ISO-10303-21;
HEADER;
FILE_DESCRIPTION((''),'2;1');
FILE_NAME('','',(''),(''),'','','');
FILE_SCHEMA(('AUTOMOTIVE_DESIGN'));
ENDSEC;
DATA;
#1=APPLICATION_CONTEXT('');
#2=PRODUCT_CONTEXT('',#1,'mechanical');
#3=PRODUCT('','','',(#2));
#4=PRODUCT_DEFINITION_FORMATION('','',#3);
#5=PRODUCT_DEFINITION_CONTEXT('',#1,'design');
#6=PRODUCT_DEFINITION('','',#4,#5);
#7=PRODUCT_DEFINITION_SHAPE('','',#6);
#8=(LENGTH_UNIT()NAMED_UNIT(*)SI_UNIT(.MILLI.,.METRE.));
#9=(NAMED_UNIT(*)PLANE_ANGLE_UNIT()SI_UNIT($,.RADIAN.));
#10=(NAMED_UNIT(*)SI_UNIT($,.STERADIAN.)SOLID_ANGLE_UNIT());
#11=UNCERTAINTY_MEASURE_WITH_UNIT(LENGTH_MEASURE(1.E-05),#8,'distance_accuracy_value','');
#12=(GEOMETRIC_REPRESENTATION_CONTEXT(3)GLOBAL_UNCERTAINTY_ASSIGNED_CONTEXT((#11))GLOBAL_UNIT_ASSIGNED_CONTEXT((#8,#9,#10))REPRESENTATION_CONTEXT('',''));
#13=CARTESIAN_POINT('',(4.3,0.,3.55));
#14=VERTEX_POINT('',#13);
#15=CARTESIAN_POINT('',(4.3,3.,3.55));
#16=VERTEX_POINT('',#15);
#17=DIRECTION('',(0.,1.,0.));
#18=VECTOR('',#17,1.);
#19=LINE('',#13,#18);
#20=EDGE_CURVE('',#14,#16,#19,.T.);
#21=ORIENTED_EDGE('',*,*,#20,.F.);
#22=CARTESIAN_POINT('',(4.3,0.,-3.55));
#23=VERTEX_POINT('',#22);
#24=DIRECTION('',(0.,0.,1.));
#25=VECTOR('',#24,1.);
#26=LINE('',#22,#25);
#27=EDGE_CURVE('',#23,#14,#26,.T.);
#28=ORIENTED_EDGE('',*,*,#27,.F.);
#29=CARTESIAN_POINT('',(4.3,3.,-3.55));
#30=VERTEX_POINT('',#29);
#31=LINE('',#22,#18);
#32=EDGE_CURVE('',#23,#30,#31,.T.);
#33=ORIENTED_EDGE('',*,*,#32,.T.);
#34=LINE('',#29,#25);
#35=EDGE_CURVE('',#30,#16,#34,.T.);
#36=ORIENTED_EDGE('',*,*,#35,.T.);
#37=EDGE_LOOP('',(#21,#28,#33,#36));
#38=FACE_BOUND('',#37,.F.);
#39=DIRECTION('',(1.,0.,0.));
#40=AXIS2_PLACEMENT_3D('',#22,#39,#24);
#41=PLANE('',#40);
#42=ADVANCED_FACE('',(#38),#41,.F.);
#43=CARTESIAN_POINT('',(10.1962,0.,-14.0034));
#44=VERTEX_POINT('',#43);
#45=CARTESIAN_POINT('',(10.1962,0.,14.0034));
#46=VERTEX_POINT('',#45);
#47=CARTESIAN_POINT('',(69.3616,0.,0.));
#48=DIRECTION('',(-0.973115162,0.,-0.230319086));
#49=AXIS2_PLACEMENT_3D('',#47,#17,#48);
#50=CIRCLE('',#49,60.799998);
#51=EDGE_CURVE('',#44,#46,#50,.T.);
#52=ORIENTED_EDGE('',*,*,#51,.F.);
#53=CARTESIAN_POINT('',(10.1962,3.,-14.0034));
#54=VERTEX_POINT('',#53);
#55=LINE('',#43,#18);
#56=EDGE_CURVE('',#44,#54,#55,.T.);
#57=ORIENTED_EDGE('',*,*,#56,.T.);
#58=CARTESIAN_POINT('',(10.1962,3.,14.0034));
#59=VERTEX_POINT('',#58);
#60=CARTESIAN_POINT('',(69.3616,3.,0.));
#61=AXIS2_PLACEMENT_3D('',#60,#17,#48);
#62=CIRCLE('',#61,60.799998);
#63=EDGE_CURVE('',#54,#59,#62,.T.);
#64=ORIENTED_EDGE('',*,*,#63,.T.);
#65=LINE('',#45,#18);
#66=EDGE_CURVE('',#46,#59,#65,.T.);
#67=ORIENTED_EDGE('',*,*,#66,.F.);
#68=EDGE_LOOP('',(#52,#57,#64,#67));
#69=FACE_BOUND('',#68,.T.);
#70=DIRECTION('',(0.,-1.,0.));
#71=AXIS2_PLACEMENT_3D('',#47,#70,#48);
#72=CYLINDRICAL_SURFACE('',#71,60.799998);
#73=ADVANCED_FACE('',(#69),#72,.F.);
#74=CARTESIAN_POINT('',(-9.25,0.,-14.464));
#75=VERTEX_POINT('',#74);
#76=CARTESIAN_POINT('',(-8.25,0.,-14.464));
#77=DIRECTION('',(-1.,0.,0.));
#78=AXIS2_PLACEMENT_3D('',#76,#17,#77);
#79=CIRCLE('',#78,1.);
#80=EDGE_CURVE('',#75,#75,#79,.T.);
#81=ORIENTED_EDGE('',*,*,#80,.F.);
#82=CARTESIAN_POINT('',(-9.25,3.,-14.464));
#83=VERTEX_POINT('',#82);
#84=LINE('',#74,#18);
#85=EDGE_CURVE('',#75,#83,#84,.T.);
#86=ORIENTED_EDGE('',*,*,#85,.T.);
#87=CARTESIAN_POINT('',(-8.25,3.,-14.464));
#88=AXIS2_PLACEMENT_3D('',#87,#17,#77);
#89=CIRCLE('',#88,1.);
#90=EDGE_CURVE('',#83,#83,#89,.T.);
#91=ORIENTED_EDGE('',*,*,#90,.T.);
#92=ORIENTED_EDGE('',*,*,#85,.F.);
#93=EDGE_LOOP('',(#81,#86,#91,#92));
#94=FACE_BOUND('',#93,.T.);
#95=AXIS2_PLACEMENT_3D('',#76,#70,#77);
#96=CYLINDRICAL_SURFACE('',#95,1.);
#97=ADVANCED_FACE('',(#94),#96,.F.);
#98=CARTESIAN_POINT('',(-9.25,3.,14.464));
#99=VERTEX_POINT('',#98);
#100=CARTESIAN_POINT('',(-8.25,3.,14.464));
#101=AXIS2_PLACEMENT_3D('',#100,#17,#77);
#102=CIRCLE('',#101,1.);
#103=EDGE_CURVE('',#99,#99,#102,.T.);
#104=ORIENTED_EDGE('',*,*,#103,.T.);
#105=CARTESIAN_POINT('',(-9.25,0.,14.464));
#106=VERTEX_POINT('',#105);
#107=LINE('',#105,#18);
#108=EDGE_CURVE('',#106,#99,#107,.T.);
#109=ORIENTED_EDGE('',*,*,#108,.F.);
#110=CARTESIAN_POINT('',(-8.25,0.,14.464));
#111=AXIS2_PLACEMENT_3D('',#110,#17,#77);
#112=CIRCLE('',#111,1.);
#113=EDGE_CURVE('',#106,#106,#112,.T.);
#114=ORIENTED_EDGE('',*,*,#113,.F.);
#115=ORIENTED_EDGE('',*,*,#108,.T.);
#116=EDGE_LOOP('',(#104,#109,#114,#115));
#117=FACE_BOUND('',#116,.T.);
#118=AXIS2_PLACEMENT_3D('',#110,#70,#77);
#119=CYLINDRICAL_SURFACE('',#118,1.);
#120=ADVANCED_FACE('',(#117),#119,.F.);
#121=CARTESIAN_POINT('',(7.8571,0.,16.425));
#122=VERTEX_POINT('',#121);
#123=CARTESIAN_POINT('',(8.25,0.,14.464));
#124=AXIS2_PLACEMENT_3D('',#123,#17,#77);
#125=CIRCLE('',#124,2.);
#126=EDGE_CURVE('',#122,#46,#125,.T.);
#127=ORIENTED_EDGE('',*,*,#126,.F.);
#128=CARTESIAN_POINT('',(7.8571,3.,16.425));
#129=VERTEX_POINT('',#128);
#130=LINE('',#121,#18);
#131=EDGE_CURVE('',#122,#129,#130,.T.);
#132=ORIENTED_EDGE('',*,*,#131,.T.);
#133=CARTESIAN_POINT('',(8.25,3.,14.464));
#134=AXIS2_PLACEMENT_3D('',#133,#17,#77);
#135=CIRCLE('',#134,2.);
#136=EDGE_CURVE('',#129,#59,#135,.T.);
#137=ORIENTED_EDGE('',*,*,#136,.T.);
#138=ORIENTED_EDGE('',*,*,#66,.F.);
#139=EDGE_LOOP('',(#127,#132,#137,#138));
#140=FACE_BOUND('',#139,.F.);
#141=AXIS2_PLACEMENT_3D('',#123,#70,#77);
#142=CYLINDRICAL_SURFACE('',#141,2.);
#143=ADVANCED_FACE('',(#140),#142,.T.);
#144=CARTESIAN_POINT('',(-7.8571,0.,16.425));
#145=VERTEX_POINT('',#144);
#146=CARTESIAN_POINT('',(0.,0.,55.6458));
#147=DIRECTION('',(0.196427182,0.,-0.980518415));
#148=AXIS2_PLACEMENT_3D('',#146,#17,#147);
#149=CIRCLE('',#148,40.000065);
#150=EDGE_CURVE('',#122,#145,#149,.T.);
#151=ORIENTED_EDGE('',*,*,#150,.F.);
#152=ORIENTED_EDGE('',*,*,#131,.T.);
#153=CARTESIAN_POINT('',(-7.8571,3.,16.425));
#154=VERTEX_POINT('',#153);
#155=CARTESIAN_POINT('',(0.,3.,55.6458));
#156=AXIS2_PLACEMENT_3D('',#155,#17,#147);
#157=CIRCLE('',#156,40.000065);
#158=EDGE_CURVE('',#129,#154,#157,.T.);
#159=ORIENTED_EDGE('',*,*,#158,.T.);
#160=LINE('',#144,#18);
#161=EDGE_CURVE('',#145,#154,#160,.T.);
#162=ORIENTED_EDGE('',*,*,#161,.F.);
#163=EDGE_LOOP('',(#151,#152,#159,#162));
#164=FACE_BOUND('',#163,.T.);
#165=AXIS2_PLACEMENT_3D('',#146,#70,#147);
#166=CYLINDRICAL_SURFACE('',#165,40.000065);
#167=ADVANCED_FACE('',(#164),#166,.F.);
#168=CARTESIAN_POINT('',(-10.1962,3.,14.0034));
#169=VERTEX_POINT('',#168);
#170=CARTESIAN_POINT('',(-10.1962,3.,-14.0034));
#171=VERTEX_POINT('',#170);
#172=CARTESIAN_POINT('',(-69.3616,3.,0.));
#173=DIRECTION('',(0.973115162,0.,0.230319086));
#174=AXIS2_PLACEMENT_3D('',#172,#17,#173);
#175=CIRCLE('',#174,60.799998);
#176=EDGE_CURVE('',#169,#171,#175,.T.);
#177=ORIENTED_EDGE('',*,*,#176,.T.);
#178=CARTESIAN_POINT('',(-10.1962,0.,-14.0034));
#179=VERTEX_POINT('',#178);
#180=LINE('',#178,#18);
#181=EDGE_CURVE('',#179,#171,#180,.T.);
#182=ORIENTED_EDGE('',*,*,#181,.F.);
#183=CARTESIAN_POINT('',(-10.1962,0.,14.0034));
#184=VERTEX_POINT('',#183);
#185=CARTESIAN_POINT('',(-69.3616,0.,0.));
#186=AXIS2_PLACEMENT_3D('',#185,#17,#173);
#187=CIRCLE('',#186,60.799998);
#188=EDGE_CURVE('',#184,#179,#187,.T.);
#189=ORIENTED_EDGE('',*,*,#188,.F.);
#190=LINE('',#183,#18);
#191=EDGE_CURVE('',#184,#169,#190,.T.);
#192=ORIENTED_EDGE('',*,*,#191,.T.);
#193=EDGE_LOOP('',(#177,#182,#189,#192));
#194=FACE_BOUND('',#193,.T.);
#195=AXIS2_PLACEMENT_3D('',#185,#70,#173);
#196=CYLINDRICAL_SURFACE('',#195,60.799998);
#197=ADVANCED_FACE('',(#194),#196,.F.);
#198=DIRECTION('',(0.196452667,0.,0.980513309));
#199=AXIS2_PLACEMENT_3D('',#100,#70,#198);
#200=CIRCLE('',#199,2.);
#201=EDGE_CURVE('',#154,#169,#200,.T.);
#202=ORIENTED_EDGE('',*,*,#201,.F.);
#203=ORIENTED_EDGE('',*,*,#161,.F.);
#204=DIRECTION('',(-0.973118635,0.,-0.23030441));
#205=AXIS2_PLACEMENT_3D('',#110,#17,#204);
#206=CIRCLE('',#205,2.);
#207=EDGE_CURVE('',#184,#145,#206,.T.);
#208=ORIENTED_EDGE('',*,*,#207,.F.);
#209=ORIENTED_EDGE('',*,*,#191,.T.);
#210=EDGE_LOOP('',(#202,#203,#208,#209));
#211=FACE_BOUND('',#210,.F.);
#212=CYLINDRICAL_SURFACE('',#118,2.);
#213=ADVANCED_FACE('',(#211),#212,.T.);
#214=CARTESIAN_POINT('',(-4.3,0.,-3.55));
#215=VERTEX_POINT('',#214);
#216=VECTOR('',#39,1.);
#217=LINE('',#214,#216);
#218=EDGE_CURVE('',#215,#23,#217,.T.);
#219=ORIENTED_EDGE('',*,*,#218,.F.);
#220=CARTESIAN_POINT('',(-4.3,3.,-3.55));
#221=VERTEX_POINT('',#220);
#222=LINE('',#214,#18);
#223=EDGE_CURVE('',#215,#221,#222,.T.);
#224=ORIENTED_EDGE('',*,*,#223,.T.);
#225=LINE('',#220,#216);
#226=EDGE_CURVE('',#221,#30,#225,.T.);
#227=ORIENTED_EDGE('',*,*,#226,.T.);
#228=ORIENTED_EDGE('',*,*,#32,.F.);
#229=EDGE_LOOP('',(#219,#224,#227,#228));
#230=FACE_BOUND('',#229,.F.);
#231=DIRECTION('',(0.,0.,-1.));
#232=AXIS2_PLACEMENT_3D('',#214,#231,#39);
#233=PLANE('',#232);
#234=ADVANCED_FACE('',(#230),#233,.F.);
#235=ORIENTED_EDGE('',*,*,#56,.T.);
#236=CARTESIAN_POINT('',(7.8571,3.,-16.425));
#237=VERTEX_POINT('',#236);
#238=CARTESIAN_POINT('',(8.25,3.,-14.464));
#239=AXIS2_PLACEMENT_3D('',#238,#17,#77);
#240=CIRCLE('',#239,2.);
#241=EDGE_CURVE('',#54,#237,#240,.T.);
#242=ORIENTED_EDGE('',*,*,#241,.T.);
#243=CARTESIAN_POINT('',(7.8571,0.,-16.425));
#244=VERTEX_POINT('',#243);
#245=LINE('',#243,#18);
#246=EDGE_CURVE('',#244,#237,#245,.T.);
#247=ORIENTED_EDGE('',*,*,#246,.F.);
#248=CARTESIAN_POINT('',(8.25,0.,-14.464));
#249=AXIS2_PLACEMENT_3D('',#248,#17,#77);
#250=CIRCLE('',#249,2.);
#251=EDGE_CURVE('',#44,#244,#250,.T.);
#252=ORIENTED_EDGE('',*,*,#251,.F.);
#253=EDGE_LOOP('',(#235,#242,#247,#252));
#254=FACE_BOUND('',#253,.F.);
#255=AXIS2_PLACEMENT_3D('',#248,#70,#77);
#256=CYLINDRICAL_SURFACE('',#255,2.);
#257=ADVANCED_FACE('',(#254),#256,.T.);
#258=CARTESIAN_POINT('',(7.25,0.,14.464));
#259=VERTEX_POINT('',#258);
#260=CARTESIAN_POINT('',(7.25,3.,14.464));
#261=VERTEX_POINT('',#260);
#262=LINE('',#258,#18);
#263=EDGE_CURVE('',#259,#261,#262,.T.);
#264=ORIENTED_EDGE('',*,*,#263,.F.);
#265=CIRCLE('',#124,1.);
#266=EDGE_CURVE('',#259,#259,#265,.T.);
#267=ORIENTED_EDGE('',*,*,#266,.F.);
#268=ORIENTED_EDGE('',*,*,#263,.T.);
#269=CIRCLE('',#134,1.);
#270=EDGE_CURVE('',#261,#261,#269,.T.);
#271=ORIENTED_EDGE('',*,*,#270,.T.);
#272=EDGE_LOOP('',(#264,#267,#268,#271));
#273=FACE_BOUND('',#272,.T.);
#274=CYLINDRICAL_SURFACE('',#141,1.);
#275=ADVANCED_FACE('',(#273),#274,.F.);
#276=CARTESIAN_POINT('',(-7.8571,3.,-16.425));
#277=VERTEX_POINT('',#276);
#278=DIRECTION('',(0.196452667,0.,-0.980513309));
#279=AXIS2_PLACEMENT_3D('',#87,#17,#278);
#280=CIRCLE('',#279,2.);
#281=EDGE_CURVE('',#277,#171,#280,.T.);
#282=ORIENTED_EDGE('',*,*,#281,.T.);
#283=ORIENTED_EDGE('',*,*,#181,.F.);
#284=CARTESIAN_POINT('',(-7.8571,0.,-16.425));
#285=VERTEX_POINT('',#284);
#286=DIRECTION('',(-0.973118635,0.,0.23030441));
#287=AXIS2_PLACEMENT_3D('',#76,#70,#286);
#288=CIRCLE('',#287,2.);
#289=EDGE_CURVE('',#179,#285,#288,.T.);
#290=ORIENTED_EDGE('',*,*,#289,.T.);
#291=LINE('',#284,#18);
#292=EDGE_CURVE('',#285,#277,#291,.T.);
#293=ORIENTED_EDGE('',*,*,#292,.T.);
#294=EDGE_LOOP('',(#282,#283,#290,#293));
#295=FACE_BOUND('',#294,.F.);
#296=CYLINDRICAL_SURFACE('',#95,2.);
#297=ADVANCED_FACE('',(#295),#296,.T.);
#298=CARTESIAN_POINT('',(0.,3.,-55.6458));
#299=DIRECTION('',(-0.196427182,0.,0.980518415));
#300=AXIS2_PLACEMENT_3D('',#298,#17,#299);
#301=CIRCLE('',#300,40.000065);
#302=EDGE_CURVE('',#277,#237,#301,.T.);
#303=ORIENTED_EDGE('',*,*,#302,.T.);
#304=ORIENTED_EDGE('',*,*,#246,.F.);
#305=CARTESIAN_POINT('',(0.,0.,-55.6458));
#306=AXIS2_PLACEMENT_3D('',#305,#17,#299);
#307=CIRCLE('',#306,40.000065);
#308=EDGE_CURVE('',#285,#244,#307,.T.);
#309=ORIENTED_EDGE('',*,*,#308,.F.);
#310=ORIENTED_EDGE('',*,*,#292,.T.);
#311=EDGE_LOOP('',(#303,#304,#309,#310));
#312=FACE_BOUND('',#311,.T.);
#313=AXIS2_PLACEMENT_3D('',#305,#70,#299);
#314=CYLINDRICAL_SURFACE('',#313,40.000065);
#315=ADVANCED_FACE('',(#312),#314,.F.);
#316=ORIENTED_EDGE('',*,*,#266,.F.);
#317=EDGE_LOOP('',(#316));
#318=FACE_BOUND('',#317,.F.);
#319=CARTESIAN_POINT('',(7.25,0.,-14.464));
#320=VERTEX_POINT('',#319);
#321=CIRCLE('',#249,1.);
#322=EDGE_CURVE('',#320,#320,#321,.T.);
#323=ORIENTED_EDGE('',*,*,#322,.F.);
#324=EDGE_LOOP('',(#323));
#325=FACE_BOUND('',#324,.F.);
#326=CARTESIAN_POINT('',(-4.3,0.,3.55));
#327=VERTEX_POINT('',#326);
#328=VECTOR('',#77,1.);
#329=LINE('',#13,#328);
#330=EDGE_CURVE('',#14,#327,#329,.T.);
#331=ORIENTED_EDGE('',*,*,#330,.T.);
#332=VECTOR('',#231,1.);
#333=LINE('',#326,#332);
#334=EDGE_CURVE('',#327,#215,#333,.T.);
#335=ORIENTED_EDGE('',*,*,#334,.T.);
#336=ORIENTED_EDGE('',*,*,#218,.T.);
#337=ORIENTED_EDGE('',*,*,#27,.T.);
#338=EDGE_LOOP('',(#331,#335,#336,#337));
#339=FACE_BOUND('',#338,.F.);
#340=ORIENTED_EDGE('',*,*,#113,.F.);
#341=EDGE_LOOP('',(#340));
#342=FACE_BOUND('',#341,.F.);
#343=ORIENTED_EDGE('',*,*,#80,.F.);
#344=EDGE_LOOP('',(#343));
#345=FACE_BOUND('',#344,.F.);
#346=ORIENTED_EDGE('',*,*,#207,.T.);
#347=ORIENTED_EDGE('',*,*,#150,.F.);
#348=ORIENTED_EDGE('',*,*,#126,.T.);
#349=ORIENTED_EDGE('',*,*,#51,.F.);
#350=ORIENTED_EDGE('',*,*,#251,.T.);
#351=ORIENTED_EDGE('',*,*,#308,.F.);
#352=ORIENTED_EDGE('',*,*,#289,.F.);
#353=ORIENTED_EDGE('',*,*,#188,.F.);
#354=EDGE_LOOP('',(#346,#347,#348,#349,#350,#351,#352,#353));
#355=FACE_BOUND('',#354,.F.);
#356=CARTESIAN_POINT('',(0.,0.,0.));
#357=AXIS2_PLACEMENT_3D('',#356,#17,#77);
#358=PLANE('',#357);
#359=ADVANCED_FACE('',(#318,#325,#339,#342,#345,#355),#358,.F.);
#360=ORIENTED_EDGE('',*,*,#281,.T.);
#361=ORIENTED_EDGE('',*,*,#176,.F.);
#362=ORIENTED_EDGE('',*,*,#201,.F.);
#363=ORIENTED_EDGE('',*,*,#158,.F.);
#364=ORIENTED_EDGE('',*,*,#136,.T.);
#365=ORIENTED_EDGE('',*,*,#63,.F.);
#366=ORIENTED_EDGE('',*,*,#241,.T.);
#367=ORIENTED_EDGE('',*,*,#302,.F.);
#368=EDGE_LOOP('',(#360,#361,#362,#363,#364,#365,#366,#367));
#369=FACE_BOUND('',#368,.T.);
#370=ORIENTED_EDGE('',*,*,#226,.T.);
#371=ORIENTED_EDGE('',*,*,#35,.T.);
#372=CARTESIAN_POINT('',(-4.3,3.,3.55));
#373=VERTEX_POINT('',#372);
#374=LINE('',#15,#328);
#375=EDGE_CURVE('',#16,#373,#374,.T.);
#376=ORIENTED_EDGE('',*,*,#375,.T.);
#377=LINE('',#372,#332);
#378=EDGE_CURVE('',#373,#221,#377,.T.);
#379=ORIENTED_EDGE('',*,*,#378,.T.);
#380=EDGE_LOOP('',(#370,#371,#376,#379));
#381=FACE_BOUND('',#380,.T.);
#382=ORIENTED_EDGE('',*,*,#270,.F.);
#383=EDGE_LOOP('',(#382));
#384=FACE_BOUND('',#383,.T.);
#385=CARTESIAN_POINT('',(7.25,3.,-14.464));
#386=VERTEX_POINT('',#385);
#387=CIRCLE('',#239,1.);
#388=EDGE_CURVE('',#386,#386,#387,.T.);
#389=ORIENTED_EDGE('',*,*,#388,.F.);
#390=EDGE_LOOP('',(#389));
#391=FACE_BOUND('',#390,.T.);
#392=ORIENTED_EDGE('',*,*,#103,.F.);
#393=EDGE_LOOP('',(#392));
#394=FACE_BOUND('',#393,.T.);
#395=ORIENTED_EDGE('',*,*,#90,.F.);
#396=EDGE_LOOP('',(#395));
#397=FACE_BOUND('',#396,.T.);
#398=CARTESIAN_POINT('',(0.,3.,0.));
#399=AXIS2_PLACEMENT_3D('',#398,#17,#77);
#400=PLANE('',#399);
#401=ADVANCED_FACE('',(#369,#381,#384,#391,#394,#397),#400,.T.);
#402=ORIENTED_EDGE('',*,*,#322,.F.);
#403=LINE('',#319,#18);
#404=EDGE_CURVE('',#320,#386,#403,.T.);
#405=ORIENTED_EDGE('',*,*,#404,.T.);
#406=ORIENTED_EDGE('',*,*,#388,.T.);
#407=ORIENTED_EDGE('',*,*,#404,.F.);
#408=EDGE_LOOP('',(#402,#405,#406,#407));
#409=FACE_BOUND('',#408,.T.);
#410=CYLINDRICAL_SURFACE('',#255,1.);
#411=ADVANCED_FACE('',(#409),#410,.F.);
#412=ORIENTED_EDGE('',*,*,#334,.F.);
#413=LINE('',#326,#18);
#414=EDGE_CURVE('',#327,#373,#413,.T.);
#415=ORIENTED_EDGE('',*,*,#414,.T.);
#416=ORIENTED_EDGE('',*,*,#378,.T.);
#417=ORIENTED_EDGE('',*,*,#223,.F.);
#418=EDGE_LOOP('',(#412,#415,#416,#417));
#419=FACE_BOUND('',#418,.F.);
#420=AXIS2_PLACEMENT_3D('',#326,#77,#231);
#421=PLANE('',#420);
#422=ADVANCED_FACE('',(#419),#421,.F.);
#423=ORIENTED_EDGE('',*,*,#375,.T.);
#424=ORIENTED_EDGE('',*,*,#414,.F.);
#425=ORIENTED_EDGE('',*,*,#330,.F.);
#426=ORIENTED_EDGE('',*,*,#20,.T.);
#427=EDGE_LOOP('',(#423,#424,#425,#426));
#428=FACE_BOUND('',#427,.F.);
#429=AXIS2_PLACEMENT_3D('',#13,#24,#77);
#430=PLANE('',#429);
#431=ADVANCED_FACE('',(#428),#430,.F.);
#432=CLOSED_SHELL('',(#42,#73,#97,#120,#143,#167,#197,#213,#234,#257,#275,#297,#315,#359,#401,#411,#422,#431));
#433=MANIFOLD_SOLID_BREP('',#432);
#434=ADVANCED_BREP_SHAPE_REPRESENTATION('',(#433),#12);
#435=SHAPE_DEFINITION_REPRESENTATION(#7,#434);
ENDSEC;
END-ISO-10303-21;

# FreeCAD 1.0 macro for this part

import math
import FreeCAD as App
import Part
import Sketcher

V = App.Vector
Q = App.Units.Quantity


def add_polygon(sketch, points):
    """Adds a closed chain of lines whose ends are joined by coincident constraints."""
    first, n = sketch.GeometryCount, len(points)
    for a, b in zip(points, points[1:] + points[:1]):
        sketch.addGeometry(Part.LineSegment(App.Vector(*a, 0), App.Vector(*b, 0)), False)
    for i in range(n):
        sketch.addConstraint(Sketcher.Constraint("Coincident", first + i, 2, first + (i + 1) % n, 1))

doc = App.newDocument("Part")
body = doc.addObject("PartDesign::Body", "Body")

sketch1 = body.newObject("Sketcher::SketchObject", "Sketch")
sketch1.AttachmentSupport = (doc.getObject("XZ_Plane"), [""])
sketch1.MapMode = "FlatFace"
sketch1.addGeometry(Part.ArcOfCircle(Part.Circle(V(-8.2, 14.5, 0), V(0, 0, 1), 2), math.radians(79), math.radians(193)), False)
sketch1.addGeometry(Part.ArcOfCircle(Part.Circle(V(0, 55.6, 0), V(0, 0, 1), 40), math.radians(-101), math.radians(-79)), False)
sketch1.addGeometry(Part.ArcOfCircle(Part.Circle(V(8.2, 14.5, 0), V(0, 0, 1), 2), math.radians(-13), math.radians(101)), False)
sketch1.addGeometry(Part.ArcOfCircle(Part.Circle(V(69.4, 0, 0), V(0, 0, 1), 60.8), math.radians(167), math.radians(193)), False)
sketch1.addGeometry(Part.ArcOfCircle(Part.Circle(V(8.2, -14.5, 0), V(0, 0, 1), 2), math.radians(-101), math.radians(13)), False)
sketch1.addGeometry(Part.ArcOfCircle(Part.Circle(V(0, -55.6, 0), V(0, 0, 1), 40), math.radians(79), math.radians(101)), False)
sketch1.addGeometry(Part.ArcOfCircle(Part.Circle(V(-8.2, -14.5, 0), V(0, 0, 1), 2), math.radians(167), math.radians(281)), False)
sketch1.addGeometry(Part.ArcOfCircle(Part.Circle(V(-69.4, 0, 0), V(0, 0, 1), 60.8), math.radians(-13), math.radians(13)), False)
sketch1.addGeometry(Part.Circle(V(-8.2, 14.5, 0), V(0, 0, 1), 1), False)
add_polygon(sketch1, [(4.3, 3.5), (-4.3, 3.5), (-4.3, -3.5), (4.3, -3.5)])
sketch1.addGeometry(Part.Circle(V(-8.2, -14.5, 0), V(0, 0, 1), 1), False)
sketch1.addGeometry(Part.Circle(V(8.2, -14.5, 0), V(0, 0, 1), 1), False)
sketch1.addGeometry(Part.Circle(V(8.2, 14.5, 0), V(0, 0, 1), 1), False)
sketch1.addConstraint([
    Sketcher.Constraint("Tangent", 0, 1, 1, 1),
    Sketcher.Constraint("Tangent", 1, 2, 2, 2),
    Sketcher.Constraint("Tangent", 2, 1, 3, 1),
    Sketcher.Constraint("Tangent", 3, 2, 4, 2),
    Sketcher.Constraint("Tangent", 4, 1, 5, 1),
    Sketcher.Constraint("Tangent", 5, 2, 6, 2),
    Sketcher.Constraint("Tangent", 6, 1, 7, 1),
    Sketcher.Constraint("Tangent", 7, 2, 0, 2),
    Sketcher.Constraint("Horizontal", 9),
    Sketcher.Constraint("Vertical", 10),
    Sketcher.Constraint("Horizontal", 11),
    Sketcher.Constraint("Vertical", 12),
    Sketcher.Constraint("Coincident", 8, 3, 0, 3),
    Sketcher.Constraint("Coincident", 13, 3, 6, 3),
    Sketcher.Constraint("Coincident", 14, 3, 4, 3),
    Sketcher.Constraint("Coincident", 15, 3, 2, 3),
    Sketcher.Constraint("Equal", 0, 2),
    Sketcher.Constraint("Equal", 2, 4),
    Sketcher.Constraint("Equal", 1, 5),
    Sketcher.Constraint("Equal", 4, 6),
    Sketcher.Constraint("Equal", 3, 7),
    Sketcher.Constraint("Equal", 8, 13),
    Sketcher.Constraint("Equal", 13, 14),
    Sketcher.Constraint("Equal", 14, 15),
    Sketcher.Constraint("Symmetric", 0, 3, 4, 3, -1, 1),
    Sketcher.Constraint("Symmetric", 2, 3, 6, 3, -1, 1),
    Sketcher.Constraint("Symmetric", 9, 2, 11, 2, -1, 1),
    Sketcher.Constraint("Symmetric", 0, 3, 2, 3, -2),
    Sketcher.Constraint("Diameter", 8, Q("2 mm")),
    Sketcher.Constraint("Radius", 0, Q("2 mm")),
    Sketcher.Constraint("Radius", 1, Q("40 mm")),
    Sketcher.Constraint("Radius", 3, Q("60.8 mm")),
    Sketcher.Constraint("DistanceX", 9, 2, 9, 1, Q("8.6 mm")),
    Sketcher.Constraint("DistanceY", 10, 2, 10, 1, Q("7.1 mm")),
    Sketcher.Constraint("DistanceX", 0, 3, 2, 3, Q("16.5 mm")),
    Sketcher.Constraint("DistanceY", 4, 3, 2, 3, Q("28.928 mm")),
])
pad1 = body.newObject("PartDesign::Pad", "Pad")
pad1.Profile = sketch1
pad1.Length = 3
pad1.Reversed = True

doc.recompute()
